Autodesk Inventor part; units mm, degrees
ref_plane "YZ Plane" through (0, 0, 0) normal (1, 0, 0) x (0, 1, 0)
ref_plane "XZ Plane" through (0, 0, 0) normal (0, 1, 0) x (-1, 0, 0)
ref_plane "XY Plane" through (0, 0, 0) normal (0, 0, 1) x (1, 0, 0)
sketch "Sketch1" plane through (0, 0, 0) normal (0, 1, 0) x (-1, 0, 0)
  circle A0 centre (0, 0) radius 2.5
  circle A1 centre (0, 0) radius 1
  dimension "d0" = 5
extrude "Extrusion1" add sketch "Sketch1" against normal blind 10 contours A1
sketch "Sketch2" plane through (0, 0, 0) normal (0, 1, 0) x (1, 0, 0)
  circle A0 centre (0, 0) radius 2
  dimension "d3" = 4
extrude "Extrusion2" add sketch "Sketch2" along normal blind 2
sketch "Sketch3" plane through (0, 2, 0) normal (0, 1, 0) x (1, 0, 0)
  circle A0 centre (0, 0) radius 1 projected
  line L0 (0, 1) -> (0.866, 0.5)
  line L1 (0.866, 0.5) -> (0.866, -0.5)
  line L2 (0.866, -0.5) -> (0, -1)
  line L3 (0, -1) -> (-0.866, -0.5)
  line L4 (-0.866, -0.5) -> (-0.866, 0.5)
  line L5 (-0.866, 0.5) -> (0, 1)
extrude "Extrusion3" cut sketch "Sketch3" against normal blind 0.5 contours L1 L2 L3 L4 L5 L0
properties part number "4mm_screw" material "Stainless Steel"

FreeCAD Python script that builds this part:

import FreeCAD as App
import Part
import Sketcher
from FreeCAD import Vector
Q = App.Units.Quantity

doc = App.newDocument("Part")
params = doc.addObject("Spreadsheet::Sheet", "Params")
for row, (alias, value) in enumerate([
    ("sketch1_diameter", "2 mm"),
    ("pad1_length", "10 mm"),
    ("sketch2_diameter", "4 mm"),
    ("pad2_length", "2 mm"),
    ("sketch3_height", "1 mm"),
    ("sketch3_length", "1 mm"),
    ("pocket1_length", "0.5 mm"),
], start=1):
    params.set(f"A{row}", alias)
    params.set(f"B{row}", "=" + value)
    params.setAlias(f"B{row}", alias)

body = doc.addObject("PartDesign::Body", "Body")

# Sketch on XZ plane
sketch1 = body.newObject("Sketcher::SketchObject", "Sketch")
sketch1.AttachmentSupport = (doc.getObject("XZ_Plane"), [""])
sketch1.MapMode = "FlatFace"
sketch1.addGeometry(Part.Circle(Vector(0, 0, 0), Vector(0, 0, 1), 1), False)
sketch1.addConstraint(Sketcher.Constraint("Coincident", 0, 3, -1, 1))
sketch1.addConstraint(Sketcher.Constraint("Diameter", 0, Q("2 mm")))
sketch1.setExpression("Constraints[1]", "Params.sketch1_diameter")
pad1 = body.newObject("PartDesign::Pad", "Pad")
pad1.Profile = sketch1
pad1.setExpression("Length", "Params.pad1_length")

# Sketch on XZ plane
sketch2 = body.newObject("Sketcher::SketchObject", "Sketch001")
sketch2.AttachmentSupport = (doc.getObject("XZ_Plane"), [""])
sketch2.MapMode = "FlatFace"
sketch2.addGeometry(Part.Circle(Vector(0, 0, 0), Vector(0, 0, 1), 2), False)
sketch2.addConstraint(Sketcher.Constraint("Coincident", 0, 3, -1, 1))
sketch2.addConstraint(Sketcher.Constraint("Diameter", 0, Q("4 mm")))
sketch2.setExpression("Constraints[1]", "Params.sketch2_diameter")
pad2 = body.newObject("PartDesign::Pad", "Pad001")
pad2.Profile = sketch2
pad2.setExpression("Length", "Params.pad2_length")
pad2.Reversed = True

# Sketch on XZ plane
sketch3 = body.newObject("Sketcher::SketchObject", "Sketch002")
sketch3.AttachmentSupport = (doc.getObject("XZ_Plane"), [""])
sketch3.MapMode = "FlatFace"
sketch3.AttachmentOffset = App.Placement(Vector(0, 0, -2), App.Rotation())
sketch3.addGeometry(Part.LineSegment(Vector(0.9, 0.5, 0), Vector(0.9, -0.5, 0)), False)
sketch3.addGeometry(Part.LineSegment(Vector(0.9, -0.5, 0), Vector(0, -1, 0)), False)
sketch3.addGeometry(Part.LineSegment(Vector(0, -1, 0), Vector(-0.9, -0.5, 0)), False)
sketch3.addGeometry(Part.LineSegment(Vector(-0.9, -0.5, 0), Vector(-0.9, 0.5, 0)), False)
sketch3.addGeometry(Part.LineSegment(Vector(-0.9, 0.5, 0), Vector(0, 1, 0)), False)
sketch3.addGeometry(Part.LineSegment(Vector(0, 1, 0), Vector(0.9, 0.5, 0)), False)
sketch3.addConstraint(Sketcher.Constraint("Coincident", 0, 2, 1, 1))
sketch3.addConstraint(Sketcher.Constraint("Coincident", 1, 2, 2, 1))
sketch3.addConstraint(Sketcher.Constraint("Coincident", 2, 2, 3, 1))
sketch3.addConstraint(Sketcher.Constraint("Coincident", 3, 2, 4, 1))
sketch3.addConstraint(Sketcher.Constraint("Coincident", 4, 2, 5, 1))
sketch3.addConstraint(Sketcher.Constraint("Coincident", 5, 2, 0, 1))
sketch3.addConstraint(Sketcher.Constraint("Vertical", 0))
sketch3.addConstraint(Sketcher.Constraint("Vertical", 3))
sketch3.addConstraint(Sketcher.Constraint("Symmetric", 0, 2, 3, 2, -1, 1))
sketch3.addConstraint(Sketcher.Constraint("Symmetric", 1, 2, 4, 2, -1, 1))
sketch3.addConstraint(Sketcher.Constraint("PointOnObject", 1, 2, -2))
sketch3.addConstraint(Sketcher.Constraint("Parallel", 2, 5))
sketch3.addConstraint(Sketcher.Constraint("Horizontal", 0, 2, 2, 2))
sketch3.addConstraint(Sketcher.Constraint("DistanceY", 0, 2, 0, 1, Q("1 mm")))
sketch3.addConstraint(Sketcher.Constraint("Angle", 1, Q("-149.9993 deg")))
sketch3.addConstraint(Sketcher.Constraint("Distance", 1, Q("1 mm")))
sketch3.setExpression("Constraints[13]", "Params.sketch3_height")
sketch3.setExpression("Constraints[15]", "Params.sketch3_length")
pocket1 = body.newObject("PartDesign::Pocket", "Pocket")
pocket1.Profile = sketch3
pocket1.setExpression("Length", "Params.pocket1_length")
pocket1.Reversed = True

doc.recompute()
